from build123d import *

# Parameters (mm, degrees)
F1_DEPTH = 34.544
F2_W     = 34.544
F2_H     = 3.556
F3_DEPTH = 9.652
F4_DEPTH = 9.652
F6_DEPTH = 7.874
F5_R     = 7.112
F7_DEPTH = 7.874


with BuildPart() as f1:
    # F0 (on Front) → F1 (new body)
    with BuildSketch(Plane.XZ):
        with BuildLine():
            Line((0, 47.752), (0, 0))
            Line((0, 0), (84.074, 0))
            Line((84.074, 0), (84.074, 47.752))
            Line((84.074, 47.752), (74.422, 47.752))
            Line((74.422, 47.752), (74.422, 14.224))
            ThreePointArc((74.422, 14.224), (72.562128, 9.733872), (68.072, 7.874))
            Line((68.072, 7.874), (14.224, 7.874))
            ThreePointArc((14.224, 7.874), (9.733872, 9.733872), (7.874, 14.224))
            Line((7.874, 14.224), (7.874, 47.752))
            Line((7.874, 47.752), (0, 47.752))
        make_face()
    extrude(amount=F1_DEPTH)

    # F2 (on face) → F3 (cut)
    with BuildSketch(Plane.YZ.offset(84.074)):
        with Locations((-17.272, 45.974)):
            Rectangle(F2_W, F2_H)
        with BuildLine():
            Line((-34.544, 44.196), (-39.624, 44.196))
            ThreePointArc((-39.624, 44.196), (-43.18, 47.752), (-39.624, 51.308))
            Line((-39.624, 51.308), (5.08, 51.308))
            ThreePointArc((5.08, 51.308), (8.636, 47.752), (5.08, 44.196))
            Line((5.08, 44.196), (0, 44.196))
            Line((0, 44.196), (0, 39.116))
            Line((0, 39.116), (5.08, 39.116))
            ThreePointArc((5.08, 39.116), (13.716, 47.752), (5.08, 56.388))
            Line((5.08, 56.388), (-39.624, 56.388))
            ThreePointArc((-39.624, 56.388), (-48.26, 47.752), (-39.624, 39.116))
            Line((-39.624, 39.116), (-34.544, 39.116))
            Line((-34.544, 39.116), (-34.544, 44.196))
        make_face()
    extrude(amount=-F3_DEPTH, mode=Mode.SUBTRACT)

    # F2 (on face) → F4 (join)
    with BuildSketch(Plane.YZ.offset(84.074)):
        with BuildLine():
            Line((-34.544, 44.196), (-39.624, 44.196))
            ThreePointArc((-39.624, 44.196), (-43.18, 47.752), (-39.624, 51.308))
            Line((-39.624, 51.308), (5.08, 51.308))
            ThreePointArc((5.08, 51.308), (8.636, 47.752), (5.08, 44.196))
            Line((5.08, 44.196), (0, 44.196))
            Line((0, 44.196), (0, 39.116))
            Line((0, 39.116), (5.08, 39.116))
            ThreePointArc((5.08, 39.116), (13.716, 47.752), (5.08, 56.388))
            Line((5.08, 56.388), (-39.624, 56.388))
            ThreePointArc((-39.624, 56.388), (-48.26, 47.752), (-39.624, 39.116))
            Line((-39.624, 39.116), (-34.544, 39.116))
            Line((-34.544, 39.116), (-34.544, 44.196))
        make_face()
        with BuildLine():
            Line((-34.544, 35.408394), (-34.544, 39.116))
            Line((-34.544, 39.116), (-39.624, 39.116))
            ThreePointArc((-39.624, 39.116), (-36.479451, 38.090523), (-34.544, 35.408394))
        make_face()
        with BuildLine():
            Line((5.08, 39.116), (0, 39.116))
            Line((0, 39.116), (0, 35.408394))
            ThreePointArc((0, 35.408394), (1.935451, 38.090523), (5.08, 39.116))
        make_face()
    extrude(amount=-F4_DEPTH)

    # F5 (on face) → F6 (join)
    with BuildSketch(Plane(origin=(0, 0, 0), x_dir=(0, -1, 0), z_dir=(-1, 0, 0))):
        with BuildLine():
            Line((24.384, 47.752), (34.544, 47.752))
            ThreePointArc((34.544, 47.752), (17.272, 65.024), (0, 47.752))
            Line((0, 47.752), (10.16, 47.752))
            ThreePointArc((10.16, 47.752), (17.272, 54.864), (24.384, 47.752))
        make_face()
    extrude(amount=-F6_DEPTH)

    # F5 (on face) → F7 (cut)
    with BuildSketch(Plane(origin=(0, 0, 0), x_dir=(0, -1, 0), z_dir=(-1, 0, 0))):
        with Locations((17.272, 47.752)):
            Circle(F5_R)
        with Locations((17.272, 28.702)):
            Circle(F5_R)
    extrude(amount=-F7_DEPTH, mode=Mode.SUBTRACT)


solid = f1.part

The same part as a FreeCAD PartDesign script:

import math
import FreeCAD as App
import Part
import Sketcher
Q = App.Units.Quantity


def add_polygon(sketch, points):
    """Adds a closed chain of lines whose ends are joined by coincident constraints."""
    first, n = sketch.GeometryCount, len(points)
    for a, b in zip(points, points[1:] + points[:1]):
        sketch.addGeometry(Part.LineSegment(App.Vector(*a, 0), App.Vector(*b, 0)), False)
    for i in range(n):
        sketch.addConstraint(Sketcher.Constraint("Coincident", first + i, 2, first + (i + 1) % n, 1))

doc = App.newDocument("Part")
body = doc.addObject("PartDesign::Body", "Body")

sketch1 = body.newObject("Sketcher::SketchObject", "Sketch")
sketch1.AttachmentSupport = (doc.getObject("XZ_Plane"), [""])
sketch1.MapMode = "FlatFace"
sketch1.addGeometry(Part.LineSegment(App.Vector(0, 47.752, 0), App.Vector(0, 0, 0)), False)
sketch1.addGeometry(Part.LineSegment(App.Vector(0, 0, 0), App.Vector(84.074, 0, 0)), False)
sketch1.addGeometry(Part.LineSegment(App.Vector(84.074, 0, 0), App.Vector(84.074, 47.752, 0)), False)
sketch1.addGeometry(Part.LineSegment(App.Vector(84.074, 47.752, 0), App.Vector(74.422, 47.752, 0)), False)
sketch1.addGeometry(Part.LineSegment(App.Vector(74.422, 47.752, 0), App.Vector(74.422, 14.224, 0)), False)
sketch1.addGeometry(Part.ArcOfCircle(Part.Circle(App.Vector(68.072, 14.224, 0), App.Vector(0, 0, 1), 6.35), math.radians(-89.999998), math.radians(-0.000002)), False)
sketch1.addGeometry(Part.LineSegment(App.Vector(68.072, 7.874, 0), App.Vector(14.224, 7.874, 0)), False)
sketch1.addGeometry(Part.ArcOfCircle(Part.Circle(App.Vector(14.224, 14.224, 0), App.Vector(0, 0, 1), 6.35), math.radians(-179.999998), math.radians(-90.000002)), False)
sketch1.addGeometry(Part.LineSegment(App.Vector(7.874, 14.224, 0), App.Vector(7.874, 47.752, 0)), False)
sketch1.addGeometry(Part.LineSegment(App.Vector(7.874, 47.752, 0), App.Vector(0, 47.752, 0)), False)
sketch1.addConstraint(Sketcher.Constraint("Coincident", 0, 2, 1, 1))
sketch1.addConstraint(Sketcher.Constraint("Coincident", 1, 2, 2, 1))
sketch1.addConstraint(Sketcher.Constraint("Coincident", 2, 2, 3, 1))
sketch1.addConstraint(Sketcher.Constraint("Coincident", 3, 2, 4, 1))
sketch1.addConstraint(Sketcher.Constraint("Tangent", 4, 2, 5, 2))
sketch1.addConstraint(Sketcher.Constraint("Tangent", 5, 1, 6, 1))
sketch1.addConstraint(Sketcher.Constraint("Tangent", 6, 2, 7, 2))
sketch1.addConstraint(Sketcher.Constraint("Tangent", 7, 1, 8, 1))
sketch1.addConstraint(Sketcher.Constraint("Coincident", 8, 2, 9, 1))
sketch1.addConstraint(Sketcher.Constraint("Coincident", 9, 2, 0, 1))
sketch1.addConstraint(Sketcher.Constraint("Vertical", 0))
sketch1.addConstraint(Sketcher.Constraint("Horizontal", 1))
sketch1.addConstraint(Sketcher.Constraint("Vertical", 2))
sketch1.addConstraint(Sketcher.Constraint("Horizontal", 3))
sketch1.addConstraint(Sketcher.Constraint("Vertical", 4))
sketch1.addConstraint(Sketcher.Constraint("Horizontal", 6))
sketch1.addConstraint(Sketcher.Constraint("Vertical", 8))
sketch1.addConstraint(Sketcher.Constraint("Horizontal", 9))
sketch1.addConstraint(Sketcher.Constraint("Coincident", 0, 2, -1, 1))
sketch1.addConstraint(Sketcher.Constraint("Equal", 5, 7))
sketch1.addConstraint(Sketcher.Constraint("Horizontal", 3, 2, 8, 2))
sketch1.addConstraint(Sketcher.Constraint("Radius", 5, Q("0.25 in")))
sketch1.addConstraint(Sketcher.Constraint("DistanceX", 1, 1, 1, 2, Q("3.31 in")))
sketch1.addConstraint(Sketcher.Constraint("DistanceX", 3, 2, 3, 1, Q("0.38 in")))
sketch1.addConstraint(Sketcher.Constraint("DistanceX", 6, 2, 6, 1, Q("2.12 in")))
sketch1.addConstraint(Sketcher.Constraint("DistanceY", 0, 2, 0, 1, Q("1.88 in")))
sketch1.addConstraint(Sketcher.Constraint("DistanceY", 4, 2, 4, 1, Q("1.32 in")))
pad1 = body.newObject("PartDesign::Pad", "Pad")
pad1.Profile = sketch1
pad1.Length = Q("1.36 in")

sketch2 = body.newObject("Sketcher::SketchObject", "Sketch001")
sketch2.AttachmentSupport = (doc.getObject("YZ_Plane"), [""])
sketch2.MapMode = "FlatFace"
sketch2.AttachmentOffset = App.Placement(App.Vector(0, 0, 3.31 * 25.4), App.Rotation())
add_polygon(sketch2, [(-34.544, 47.752), (-34.544, 44.196), (0, 44.196), (0, 47.752)])
sketch2.addGeometry(Part.LineSegment(App.Vector(-34.544, 44.196, 0), App.Vector(-39.624, 44.196, 0)), False)
sketch2.addGeometry(Part.ArcOfCircle(Part.Circle(App.Vector(-39.624, 47.752, 0), App.Vector(0, 0, 1), 3.556), math.radians(90), math.radians(270)), False)
sketch2.addGeometry(Part.LineSegment(App.Vector(-39.624, 51.308, 0), App.Vector(5.08, 51.308, 0)), False)
sketch2.addGeometry(Part.ArcOfCircle(Part.Circle(App.Vector(5.08, 47.752, 0), App.Vector(0, 0, 1), 3.556), math.radians(-90), math.radians(90)), False)
sketch2.addGeometry(Part.LineSegment(App.Vector(5.08, 44.196, 0), App.Vector(0, 44.196, 0)), False)
sketch2.addGeometry(Part.LineSegment(App.Vector(0, 44.196, 0), App.Vector(0, 39.116, 0)), False)
sketch2.addGeometry(Part.LineSegment(App.Vector(0, 39.116, 0), App.Vector(5.08, 39.116, 0)), False)
sketch2.addGeometry(Part.ArcOfCircle(Part.Circle(App.Vector(5.08, 47.752, 0), App.Vector(0, 0, 1), 8.636), math.radians(-90), math.radians(90)), False)
sketch2.addGeometry(Part.LineSegment(App.Vector(5.08, 56.388, 0), App.Vector(-39.624, 56.388, 0)), False)
sketch2.addGeometry(Part.ArcOfCircle(Part.Circle(App.Vector(-39.624, 47.752, 0), App.Vector(0, 0, 1), 8.636), math.radians(90), math.radians(270)), False)
sketch2.addGeometry(Part.LineSegment(App.Vector(-39.624, 39.116, 0), App.Vector(-34.544, 39.116, 0)), False)
sketch2.addGeometry(Part.LineSegment(App.Vector(-34.544, 39.116, 0), App.Vector(-34.544, 44.196, 0)), False)
sketch2.addConstraint(Sketcher.Constraint("Tangent", 4, 2, 5, 2))
sketch2.addConstraint(Sketcher.Constraint("Tangent", 5, 1, 6, 1))
sketch2.addConstraint(Sketcher.Constraint("Tangent", 6, 2, 7, 2))
sketch2.addConstraint(Sketcher.Constraint("Tangent", 7, 1, 8, 1))
sketch2.addConstraint(Sketcher.Constraint("Coincident", 8, 2, 9, 1))
sketch2.addConstraint(Sketcher.Constraint("Coincident", 9, 2, 10, 1))
sketch2.addConstraint(Sketcher.Constraint("Tangent", 10, 2, 11, 1))
sketch2.addConstraint(Sketcher.Constraint("Tangent", 11, 2, 12, 1))
sketch2.addConstraint(Sketcher.Constraint("Tangent", 12, 2, 13, 1))
sketch2.addConstraint(Sketcher.Constraint("Tangent", 13, 2, 14, 1))
sketch2.addConstraint(Sketcher.Constraint("Coincident", 14, 2, 15, 1))
sketch2.addConstraint(Sketcher.Constraint("Coincident", 15, 2, 4, 1))
sketch2.addConstraint(Sketcher.Constraint("Vertical", 0))
sketch2.addConstraint(Sketcher.Constraint("Horizontal", 1))
sketch2.addConstraint(Sketcher.Constraint("Vertical", 2))
sketch2.addConstraint(Sketcher.Constraint("Horizontal", 3))
sketch2.addConstraint(Sketcher.Constraint("Horizontal", 4))
sketch2.addConstraint(Sketcher.Constraint("Horizontal", 6))
sketch2.addConstraint(Sketcher.Constraint("Horizontal", 8))
sketch2.addConstraint(Sketcher.Constraint("Vertical", 9))
sketch2.addConstraint(Sketcher.Constraint("Horizontal", 10))
sketch2.addConstraint(Sketcher.Constraint("Horizontal", 12))
sketch2.addConstraint(Sketcher.Constraint("Horizontal", 14))
sketch2.addConstraint(Sketcher.Constraint("Vertical", 15))
sketch2.addConstraint(Sketcher.Constraint("Coincident", 11, 3, 7, 3))
sketch2.addConstraint(Sketcher.Constraint("Coincident", 13, 3, 5, 3))
sketch2.addConstraint(Sketcher.Constraint("Coincident", 8, 2, 1, 2))
sketch2.addConstraint(Sketcher.Constraint("Coincident", 15, 2, 0, 2))
sketch2.addConstraint(Sketcher.Constraint("PointOnObject", 1, 2, -2))
sketch2.addConstraint(Sketcher.Constraint("Horizontal", 13, 3, 2, 2))
sketch2.addConstraint(Sketcher.Constraint("Equal", 4, 8))
sketch2.addConstraint(Sketcher.Constraint("Equal", 14, 9))
sketch2.addConstraint(Sketcher.Constraint("Radius", 5, Q("0.14 in")))
sketch2.addConstraint(Sketcher.Constraint("Radius", 11, Q("0.34 in")))
sketch2.addConstraint(Sketcher.Constraint("DistanceX", 1, 1, 1, 2, Q("1.36 in")))
sketch2.addConstraint(Sketcher.Constraint("DistanceY", -1, 1, 5, 3, Q("1.88 in")))
pocket1 = body.newObject("PartDesign::Pocket", "Pocket")
pocket1.Profile = sketch2
pocket1.Length = Q("0.38 in")

sketch3 = body.newObject("Sketcher::SketchObject", "Sketch002")
sketch3.AttachmentSupport = (doc.getObject("YZ_Plane"), [""])
sketch3.MapMode = "FlatFace"
sketch3.AttachmentOffset = App.Placement(App.Vector(0, 0, 3.31 * 25.4), App.Rotation())
sketch3.addGeometry(Part.LineSegment(App.Vector(-34.544, 44.196, 0), App.Vector(-39.624, 44.196, 0)), False)
sketch3.addGeometry(Part.ArcOfCircle(Part.Circle(App.Vector(-39.624, 47.752, 0), App.Vector(0, 0, 1), 3.556), math.radians(90), math.radians(270)), False)
sketch3.addGeometry(Part.LineSegment(App.Vector(-39.624, 51.308, 0), App.Vector(5.08, 51.308, 0)), False)
sketch3.addGeometry(Part.ArcOfCircle(Part.Circle(App.Vector(5.08, 47.752, 0), App.Vector(0, 0, 1), 3.556), math.radians(-90), math.radians(90)), False)
sketch3.addGeometry(Part.LineSegment(App.Vector(5.08, 44.196, 0), App.Vector(0, 44.196, 0)), False)
sketch3.addGeometry(Part.LineSegment(App.Vector(0, 44.196, 0), App.Vector(0, 35.408394, 0)), False)
sketch3.addGeometry(Part.ArcOfCircle(Part.Circle(App.Vector(5.079999, 33.782001, 0), App.Vector(0, 0, 1), 5.333999), math.radians(89.999992), math.radians(162.247211)), False)
sketch3.addGeometry(Part.ArcOfCircle(Part.Circle(App.Vector(5.08, 47.752, 0), App.Vector(0, 0, 1), 8.636), math.radians(-90), math.radians(90)), False)
sketch3.addGeometry(Part.LineSegment(App.Vector(5.08, 56.388, 0), App.Vector(-39.624, 56.388, 0)), False)
sketch3.addGeometry(Part.ArcOfCircle(Part.Circle(App.Vector(-39.624, 47.752, 0), App.Vector(0, 0, 1), 8.636), math.radians(90), math.radians(270)), False)
sketch3.addGeometry(Part.ArcOfCircle(Part.Circle(App.Vector(-39.623999, 33.782001, 0), App.Vector(0, 0, 1), 5.333999), math.radians(17.752789), math.radians(90.000008)), False)
sketch3.addGeometry(Part.LineSegment(App.Vector(-34.544, 35.408394, 0), App.Vector(-34.544, 44.196, 0)), False)
sketch3.addConstraint(Sketcher.Constraint("Tangent", 0, 2, 1, 2))
sketch3.addConstraint(Sketcher.Constraint("Tangent", 1, 1, 2, 1))
sketch3.addConstraint(Sketcher.Constraint("Tangent", 2, 2, 3, 2))
sketch3.addConstraint(Sketcher.Constraint("Tangent", 3, 1, 4, 1))
sketch3.addConstraint(Sketcher.Constraint("Coincident", 4, 2, 5, 1))
sketch3.addConstraint(Sketcher.Constraint("Coincident", 5, 2, 6, 2))
sketch3.addConstraint(Sketcher.Constraint("Tangent", 6, 1, 7, 1))
sketch3.addConstraint(Sketcher.Constraint("Tangent", 7, 2, 8, 1))
sketch3.addConstraint(Sketcher.Constraint("Tangent", 8, 2, 9, 1))
sketch3.addConstraint(Sketcher.Constraint("Tangent", 9, 2, 10, 2))
sketch3.addConstraint(Sketcher.Constraint("Coincident", 10, 1, 11, 1))
sketch3.addConstraint(Sketcher.Constraint("Coincident", 11, 2, 0, 1))
sketch3.addConstraint(Sketcher.Constraint("Horizontal", 0))
sketch3.addConstraint(Sketcher.Constraint("Horizontal", 2))
sketch3.addConstraint(Sketcher.Constraint("Horizontal", 4))
sketch3.addConstraint(Sketcher.Constraint("Vertical", 5))
sketch3.addConstraint(Sketcher.Constraint("Horizontal", 8))
sketch3.addConstraint(Sketcher.Constraint("Vertical", 11))
sketch3.addConstraint(Sketcher.Constraint("Coincident", 7, 3, 3, 3))
sketch3.addConstraint(Sketcher.Constraint("Coincident", 9, 3, 1, 3))
sketch3.addConstraint(Sketcher.Constraint("Equal", 1, 3))
sketch3.addConstraint(Sketcher.Constraint("Equal", 6, 10))
sketch3.addConstraint(Sketcher.Constraint("PointOnObject", 4, 2, -2))
sketch3.addConstraint(Sketcher.Constraint("Horizontal", 5, 2, 10, 1))
sketch3.addConstraint(Sketcher.Constraint("Vertical", 3, 3, 6, 3))
sketch3.addConstraint(Sketcher.Constraint("Vertical", 9, 3, 10, 3))
sketch3.addConstraint(Sketcher.Constraint("Radius", 1, Q("0.14 in")))
sketch3.addConstraint(Sketcher.Constraint("Radius", 6, Q("0.21 in")))
sketch3.addConstraint(Sketcher.Constraint("Radius", 7, Q("0.34 in")))
sketch3.addConstraint(Sketcher.Constraint("DistanceX", 0, 2, 0, 1, Q("0.2 in")))
sketch3.addConstraint(Sketcher.Constraint("DistanceX", 2, 1, 2, 2, Q("1.76 in")))
sketch3.addConstraint(Sketcher.Constraint("DistanceY", -1, 1, 1, 3, Q("1.88 in")))
pad2 = body.newObject("PartDesign::Pad", "Pad001")
pad2.Profile = sketch3
pad2.Length = Q("0.38 in")
pad2.Reversed = True

sketch4 = body.newObject("Sketcher::SketchObject", "Sketch003")
sketch4.AttachmentSupport = (doc.getObject("YZ_Plane"), [""])
sketch4.MapMode = "FlatFace"
sketch4.addGeometry(Part.LineSegment(App.Vector(-24.384, 47.752, 0), App.Vector(-34.544, 47.752, 0)), False)
sketch4.addGeometry(Part.ArcOfCircle(Part.Circle(App.Vector(-17.272, 47.752, 0), App.Vector(0, 0, 1), 17.272), math.radians(0), math.radians(180)), False)
sketch4.addGeometry(Part.LineSegment(App.Vector(0, 47.752, 0), App.Vector(-10.16, 47.752, 0)), False)
sketch4.addGeometry(Part.ArcOfCircle(Part.Circle(App.Vector(-17.272, 47.752, 0), App.Vector(0, 0, 1), 7.112), math.radians(0), math.radians(180)), False)
sketch4.addConstraint(Sketcher.Constraint("Coincident", 0, 2, 1, 2))
sketch4.addConstraint(Sketcher.Constraint("Coincident", 1, 1, 2, 1))
sketch4.addConstraint(Sketcher.Constraint("Coincident", 2, 2, 3, 1))
sketch4.addConstraint(Sketcher.Constraint("Coincident", 3, 2, 0, 1))
sketch4.addConstraint(Sketcher.Constraint("Horizontal", 0))
sketch4.addConstraint(Sketcher.Constraint("Horizontal", 2))
sketch4.addConstraint(Sketcher.Constraint("Coincident", 3, 3, 1, 3))
sketch4.addConstraint(Sketcher.Constraint("PointOnObject", 1, 1, -2))
sketch4.addConstraint(Sketcher.Constraint("Horizontal", 3, 3, 0, 2))
sketch4.addConstraint(Sketcher.Constraint("Horizontal", 0, 2, 1, 1))
sketch4.addConstraint(Sketcher.Constraint("Radius", 1, Q("0.68 in")))
sketch4.addConstraint(Sketcher.Constraint("Radius", 3, Q("0.28 in")))
sketch4.addConstraint(Sketcher.Constraint("DistanceY", -1, 1, 1, 3, Q("1.88 in")))
pad3 = body.newObject("PartDesign::Pad", "Pad002")
pad3.Profile = sketch4
pad3.Length = Q("0.31 in")

sketch5 = body.newObject("Sketcher::SketchObject", "Sketch004")
sketch5.AttachmentSupport = (doc.getObject("YZ_Plane"), [""])
sketch5.MapMode = "FlatFace"
sketch5.addGeometry(Part.Circle(App.Vector(-17.272, 47.752, 0), App.Vector(0, 0, 1), 7.112), False)
sketch5.addGeometry(Part.Circle(App.Vector(-17.272, 28.702, 0), App.Vector(0, 0, 1), 7.112), False)
sketch5.addConstraint(Sketcher.Constraint("Equal", 0, 1))
sketch5.addConstraint(Sketcher.Constraint("Vertical", 0, 3, 1, 3))
sketch5.addConstraint(Sketcher.Constraint("Diameter", 0, Q("0.56 in")))
sketch5.addConstraint(Sketcher.Constraint("DistanceX", 0, 3, -1, 1, Q("0.68 in")))
sketch5.addConstraint(Sketcher.Constraint("DistanceY", -1, 1, 0, 3, Q("1.88 in")))
sketch5.addConstraint(Sketcher.Constraint("DistanceY", -1, 1, 1, 3, Q("1.13 in")))
pocket2 = body.newObject("PartDesign::Pocket", "Pocket001")
pocket2.Profile = sketch5
pocket2.Length = Q("0.31 in")
pocket2.Reversed = True

doc.recompute()
